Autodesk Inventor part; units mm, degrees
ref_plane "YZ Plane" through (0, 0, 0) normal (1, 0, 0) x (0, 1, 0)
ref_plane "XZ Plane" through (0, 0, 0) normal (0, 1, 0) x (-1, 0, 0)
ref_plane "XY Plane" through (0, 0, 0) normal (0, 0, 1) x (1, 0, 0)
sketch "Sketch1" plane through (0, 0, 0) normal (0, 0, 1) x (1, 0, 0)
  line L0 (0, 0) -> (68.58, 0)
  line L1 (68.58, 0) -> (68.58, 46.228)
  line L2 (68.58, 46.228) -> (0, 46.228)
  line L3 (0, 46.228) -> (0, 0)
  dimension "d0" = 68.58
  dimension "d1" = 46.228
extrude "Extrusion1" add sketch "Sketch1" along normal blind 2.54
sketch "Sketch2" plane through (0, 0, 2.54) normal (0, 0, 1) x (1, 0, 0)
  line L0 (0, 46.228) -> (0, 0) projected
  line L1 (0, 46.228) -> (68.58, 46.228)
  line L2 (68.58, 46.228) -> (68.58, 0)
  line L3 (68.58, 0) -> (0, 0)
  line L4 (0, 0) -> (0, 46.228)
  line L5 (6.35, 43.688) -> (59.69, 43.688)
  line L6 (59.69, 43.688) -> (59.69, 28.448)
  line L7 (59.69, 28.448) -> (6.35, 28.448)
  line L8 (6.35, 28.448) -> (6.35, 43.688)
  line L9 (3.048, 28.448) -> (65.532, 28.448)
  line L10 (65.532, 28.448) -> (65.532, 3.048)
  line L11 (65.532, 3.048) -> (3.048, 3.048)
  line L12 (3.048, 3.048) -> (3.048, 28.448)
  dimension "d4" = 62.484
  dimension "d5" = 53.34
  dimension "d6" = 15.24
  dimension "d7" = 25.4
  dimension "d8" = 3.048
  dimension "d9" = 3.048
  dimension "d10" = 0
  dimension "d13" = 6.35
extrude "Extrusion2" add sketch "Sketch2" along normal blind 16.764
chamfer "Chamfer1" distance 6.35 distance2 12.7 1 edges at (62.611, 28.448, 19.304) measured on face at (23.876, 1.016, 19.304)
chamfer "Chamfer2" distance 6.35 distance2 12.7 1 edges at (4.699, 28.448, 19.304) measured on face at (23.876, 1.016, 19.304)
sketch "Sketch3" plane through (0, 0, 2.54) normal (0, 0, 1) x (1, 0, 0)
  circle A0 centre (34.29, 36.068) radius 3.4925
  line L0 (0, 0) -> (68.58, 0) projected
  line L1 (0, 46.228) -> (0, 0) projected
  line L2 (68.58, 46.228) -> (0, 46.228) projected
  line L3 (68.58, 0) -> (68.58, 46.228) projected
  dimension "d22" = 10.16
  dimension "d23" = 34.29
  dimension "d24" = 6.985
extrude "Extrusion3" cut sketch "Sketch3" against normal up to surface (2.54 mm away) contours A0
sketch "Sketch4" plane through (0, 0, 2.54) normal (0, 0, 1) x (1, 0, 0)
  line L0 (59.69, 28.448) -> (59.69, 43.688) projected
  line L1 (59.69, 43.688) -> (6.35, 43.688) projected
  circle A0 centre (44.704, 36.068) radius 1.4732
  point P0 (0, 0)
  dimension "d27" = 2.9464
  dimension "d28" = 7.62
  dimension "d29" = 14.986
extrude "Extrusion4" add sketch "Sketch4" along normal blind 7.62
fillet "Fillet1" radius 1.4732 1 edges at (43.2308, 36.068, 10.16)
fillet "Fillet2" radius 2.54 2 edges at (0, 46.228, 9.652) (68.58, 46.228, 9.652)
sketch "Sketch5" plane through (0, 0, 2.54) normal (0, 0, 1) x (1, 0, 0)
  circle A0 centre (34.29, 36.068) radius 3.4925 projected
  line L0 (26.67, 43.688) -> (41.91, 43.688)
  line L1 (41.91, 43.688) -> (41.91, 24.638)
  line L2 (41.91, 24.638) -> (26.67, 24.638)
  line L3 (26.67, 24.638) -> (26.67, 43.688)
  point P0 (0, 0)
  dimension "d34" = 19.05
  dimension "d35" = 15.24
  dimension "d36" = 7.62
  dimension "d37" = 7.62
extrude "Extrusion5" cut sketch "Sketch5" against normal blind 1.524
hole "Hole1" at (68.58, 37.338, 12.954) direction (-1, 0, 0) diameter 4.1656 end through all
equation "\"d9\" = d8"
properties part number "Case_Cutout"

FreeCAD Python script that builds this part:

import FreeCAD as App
import Part
import Sketcher
Q = App.Units.Quantity


def edges_at(feature, points):
    """Names of the edges that pass closest to the given points."""
    edges = feature.Shape.Edges
    near = lambda p: min(range(len(edges)), key=lambda i: edges[i].distToShape(Part.Vertex(*p))[0])
    return sorted({f"Edge{near(p) + 1}" for p in points})

doc = App.newDocument("Part")
body = doc.addObject("PartDesign::Body", "Body")

# Sketch on XY plane
sketch1 = body.newObject("Sketcher::SketchObject", "Sketch")
sketch1.AttachmentSupport = (doc.getObject("XY_Plane"), [""])
sketch1.MapMode = "FlatFace"
sketch1.addGeometry([
    Part.LineSegment(App.Vector(0, 46, 0), App.Vector(0, 0, 0)),
    Part.LineSegment(App.Vector(0, 0, 0), App.Vector(69, 0, 0)),
    Part.LineSegment(App.Vector(69, 0, 0), App.Vector(69, 46, 0)),
    Part.LineSegment(App.Vector(69, 46, 0), App.Vector(0, 46, 0)),
], False)
sketch1.addConstraint([
    Sketcher.Constraint("Coincident", 0, 2, 1, 1),
    Sketcher.Constraint("Coincident", 1, 2, 2, 1),
    Sketcher.Constraint("Coincident", 2, 2, 3, 1),
    Sketcher.Constraint("Coincident", 3, 2, 0, 1),
    Sketcher.Constraint("Vertical", 0),
    Sketcher.Constraint("Horizontal", 1),
    Sketcher.Constraint("Vertical", 2),
    Sketcher.Constraint("Horizontal", 3),
    Sketcher.Constraint("Coincident", 0, 2, -1, 1),
    Sketcher.Constraint("DistanceX", 1, 1, 1, 2, Q("2.7 in")),
    Sketcher.Constraint("DistanceY", 0, 2, 0, 1, Q("1.82 in")),
])
pad1 = body.newObject("PartDesign::Pad", "Pad")
pad1.Profile = sketch1
pad1.Length = Q("0.1 in")

# Sketch on XY plane
sketch2 = body.newObject("Sketcher::SketchObject", "Sketch001")
sketch2.AttachmentSupport = (doc.getObject("XY_Plane"), [""])
sketch2.MapMode = "FlatFace"
sketch2.AttachmentOffset = App.Placement(App.Vector(0, 0, 0.1 * 25.4), App.Rotation())
sketch2.addGeometry([
    Part.LineSegment(App.Vector(68.6, 46.2, 0), App.Vector(0, 46.2, 0)),  # 0
    Part.LineSegment(App.Vector(0, 46.2, 0), App.Vector(0, 0, 0)),  # 1
    Part.LineSegment(App.Vector(0, 0, 0), App.Vector(68.6, 0, 0)),  # 2
    Part.LineSegment(App.Vector(68.6, 0, 0), App.Vector(68.6, 46.2, 0)),  # 3
    Part.LineSegment(App.Vector(6.3, 28.4, 0), App.Vector(6.3, 43.7, 0)),  # 4
    Part.LineSegment(App.Vector(6.3, 43.7, 0), App.Vector(59.7, 43.7, 0)),  # 5
    Part.LineSegment(App.Vector(59.7, 43.7, 0), App.Vector(59.7, 28.4, 0)),  # 6
    Part.LineSegment(App.Vector(59.7, 28.4, 0), App.Vector(65.5, 28.4, 0)),  # 7
    Part.LineSegment(App.Vector(65.5, 28.4, 0), App.Vector(65.5, 3, 0)),  # 8
    Part.LineSegment(App.Vector(65.5, 3, 0), App.Vector(3, 3, 0)),  # 9
    Part.LineSegment(App.Vector(3, 3, 0), App.Vector(3, 28.4, 0)),  # 10
    Part.LineSegment(App.Vector(3, 28.4, 0), App.Vector(6.3, 28.4, 0)),  # 11
], False)
sketch2.addConstraint([
    Sketcher.Constraint("Coincident", 0, 2, 1, 1),
    Sketcher.Constraint("Coincident", 1, 2, 2, 1),
    Sketcher.Constraint("Coincident", 2, 2, 3, 1),
    Sketcher.Constraint("Coincident", 3, 2, 0, 1),
    Sketcher.Constraint("Coincident", 4, 2, 5, 1),
    Sketcher.Constraint("Coincident", 5, 2, 6, 1),
    Sketcher.Constraint("Coincident", 6, 2, 7, 1),
    Sketcher.Constraint("Coincident", 7, 2, 8, 1),
    Sketcher.Constraint("Coincident", 8, 2, 9, 1),
    Sketcher.Constraint("Coincident", 9, 2, 10, 1),
    Sketcher.Constraint("Coincident", 10, 2, 11, 1),
    Sketcher.Constraint("Coincident", 11, 2, 4, 1),
    Sketcher.Constraint("Horizontal", 0),
    Sketcher.Constraint("Vertical", 1),
    Sketcher.Constraint("Horizontal", 2),
    Sketcher.Constraint("Vertical", 3),
    Sketcher.Constraint("Vertical", 4),
    Sketcher.Constraint("Horizontal", 5),
    Sketcher.Constraint("Vertical", 6),
    Sketcher.Constraint("Horizontal", 7),
    Sketcher.Constraint("Vertical", 8),
    Sketcher.Constraint("Horizontal", 9),
    Sketcher.Constraint("Vertical", 10),
    Sketcher.Constraint("Horizontal", 11),
    Sketcher.Constraint("Coincident", 1, 2, -1, 1),
    Sketcher.Constraint("Horizontal", 7, 2, 10, 2),
    Sketcher.Constraint("DistanceY", 8, 2, 8, 1, Q("1 in")),
    Sketcher.Constraint("DistanceX", 5, 1, 5, 2, Q("2.1 in")),
    Sketcher.Constraint("DistanceY", 4, 1, 4, 2, Q("0.6 in")),
    Sketcher.Constraint("DistanceX", 9, 2, 9, 1, Q("2.46 in")),
    Sketcher.Constraint("DistanceX", -1, 1, 4, 2, Q("0.25 in")),
    Sketcher.Constraint("DistanceY", -1, 1, 8, 2, Q("0.12 in")),
    Sketcher.Constraint("DistanceX", -1, 1, 9, 2, Q("0.12 in")),
    Sketcher.Constraint("DistanceX", 7, 2, 3, 2, Q("0.12 in")),
    Sketcher.Constraint("DistanceY", 1, 2, 1, 1, Q("1.82 in")),
])
pad2 = body.newObject("PartDesign::Pad", "Pad001")
pad2.Profile = sketch2
pad2.Length = Q("0.66 in")
doc.recompute()

chamfer = body.newObject("PartDesign::Chamfer", "Chamfer")
chamfer.Base = (pad2, edges_at(pad2, [(62.611, 28.448, 19.304)]))
chamfer.ChamferType = "Two distances"
chamfer.Size = Q("0.25 in")
chamfer.Size2 = Q("0.5 in")
doc.recompute()

chamfer2 = body.newObject("PartDesign::Chamfer", "Chamfer001")
chamfer2.Base = (chamfer, edges_at(chamfer, [(4.699, 28.448, 19.304)]))
chamfer2.ChamferType = "Two distances"
chamfer2.Size = Q("0.25 in")
chamfer2.Size2 = Q("0.5 in")

# Sketch on XY plane
sketch3 = body.newObject("Sketcher::SketchObject", "Sketch002")
sketch3.AttachmentSupport = (doc.getObject("XY_Plane"), [""])
sketch3.MapMode = "FlatFace"
sketch3.AttachmentOffset = App.Placement(App.Vector(0, 0, 0.1 * 25.4), App.Rotation())
sketch3.addGeometry(Part.Circle(App.Vector(34.3, 36.1, 0), App.Vector(0, 0, 1), 3.5), False)
sketch3.addConstraint([
    Sketcher.Constraint("Diameter", 0, Q("0.275 in")),
    Sketcher.Constraint("DistanceX", -1, 1, 0, 3, Q("1.35 in")),
    Sketcher.Constraint("DistanceY", -1, 1, 0, 3, Q("1.42 in")),
])
pocket1 = body.newObject("PartDesign::Pocket", "Pocket")
pocket1.Profile = sketch3
pocket1.Length = Q("0.1 in")

# Sketch on XY plane
sketch4 = body.newObject("Sketcher::SketchObject", "Sketch003")
sketch4.AttachmentSupport = (doc.getObject("XY_Plane"), [""])
sketch4.MapMode = "FlatFace"
sketch4.AttachmentOffset = App.Placement(App.Vector(0, 0, 0.1 * 25.4), App.Rotation())
sketch4.addGeometry(Part.Circle(App.Vector(44.7, 36.1, 0), App.Vector(0, 0, 1), 1.5), False)
sketch4.addConstraint([
    Sketcher.Constraint("Diameter", 0, Q("0.116 in")),
    Sketcher.Constraint("DistanceX", -1, 1, 0, 3, Q("1.76 in")),
    Sketcher.Constraint("DistanceY", -1, 1, 0, 3, Q("1.42 in")),
])
pad3 = body.newObject("PartDesign::Pad", "Pad002")
pad3.Profile = sketch4
pad3.Length = Q("0.3 in")
doc.recompute()

fillet = body.newObject("PartDesign::Fillet", "Fillet")
fillet.Base = (pad3, edges_at(pad3, [(43.231, 36.068, 10.16)]))
fillet.Radius = Q("0.058 in")
doc.recompute()

fillet2 = body.newObject("PartDesign::Fillet", "Fillet001")
fillet2.Base = (fillet, edges_at(fillet, [(0, 46.228, 9.652), (68.58, 46.228, 9.652)]))
fillet2.Radius = Q("0.1 in")

# Sketch on XY plane
sketch5 = body.newObject("Sketcher::SketchObject", "Sketch004")
sketch5.AttachmentSupport = (doc.getObject("XY_Plane"), [""])
sketch5.MapMode = "FlatFace"
sketch5.AttachmentOffset = App.Placement(App.Vector(0, 0, 0.1 * 25.4), App.Rotation())
sketch5.addGeometry([
    Part.LineSegment(App.Vector(41.9, 43.7, 0), App.Vector(26.7, 43.7, 0)),  # 0
    Part.LineSegment(App.Vector(26.7, 43.7, 0), App.Vector(26.7, 24.6, 0)),  # 1
    Part.LineSegment(App.Vector(26.7, 24.6, 0), App.Vector(41.9, 24.6, 0)),  # 2
    Part.LineSegment(App.Vector(41.9, 24.6, 0), App.Vector(41.9, 43.7, 0)),  # 3
    Part.Circle(App.Vector(34.3, 36.1, 0), App.Vector(0, 0, 1), 3.5),  # 4
], False)
sketch5.addConstraint([
    Sketcher.Constraint("Coincident", 0, 2, 1, 1),
    Sketcher.Constraint("Coincident", 1, 2, 2, 1),
    Sketcher.Constraint("Coincident", 2, 2, 3, 1),
    Sketcher.Constraint("Coincident", 3, 2, 0, 1),
    Sketcher.Constraint("Horizontal", 0),
    Sketcher.Constraint("Vertical", 1),
    Sketcher.Constraint("Horizontal", 2),
    Sketcher.Constraint("Vertical", 3),
    Sketcher.Constraint("DistanceX", 0, 2, 0, 1, Q("0.6 in")),
    Sketcher.Constraint("DistanceY", 1, 2, 1, 1, Q("0.75 in")),
    Sketcher.Constraint("DistanceX", 0, 2, 4, 3, Q("0.3 in")),
    Sketcher.Constraint("DistanceY", 4, 3, 0, 2, Q("0.3 in")),
    Sketcher.Constraint("Diameter", 4, Q("0.275 in")),
    Sketcher.Constraint("DistanceX", -1, 1, 4, 3, Q("1.35 in")),
    Sketcher.Constraint("DistanceY", -1, 1, 4, 3, Q("1.42 in")),
])
pocket2 = body.newObject("PartDesign::Pocket", "Pocket001")
pocket2.Profile = sketch5
pocket2.Length = Q("0.06 in")

# Sketch on YZ plane
sketch6 = body.newObject("Sketcher::SketchObject", "Sketch005")
sketch6.AttachmentSupport = (doc.getObject("YZ_Plane"), [""])
sketch6.MapMode = "FlatFace"
sketch6.AttachmentOffset = App.Placement(App.Vector(0, 0, 2.7 * 25.4), App.Rotation())
sketch6.addGeometry(Part.Circle(App.Vector(37.3, 13, 0), App.Vector(0, 0, 1), 2.1), False)
sketch6.addConstraint([
    Sketcher.Constraint("Diameter", 0, Q("0.164 in")),
    Sketcher.Constraint("DistanceX", -1, 1, 0, 3, Q("1.47 in")),
    Sketcher.Constraint("DistanceY", -1, 1, 0, 3, Q("0.51 in")),
])
doc.recompute()
hole = body.newObject("PartDesign::Hole", "Hole")
hole.Profile = sketch6
hole.ThreadType = "None"
hole.Diameter = Q("0.164 in")
hole.DepthType = "ThroughAll"

doc.recompute()
